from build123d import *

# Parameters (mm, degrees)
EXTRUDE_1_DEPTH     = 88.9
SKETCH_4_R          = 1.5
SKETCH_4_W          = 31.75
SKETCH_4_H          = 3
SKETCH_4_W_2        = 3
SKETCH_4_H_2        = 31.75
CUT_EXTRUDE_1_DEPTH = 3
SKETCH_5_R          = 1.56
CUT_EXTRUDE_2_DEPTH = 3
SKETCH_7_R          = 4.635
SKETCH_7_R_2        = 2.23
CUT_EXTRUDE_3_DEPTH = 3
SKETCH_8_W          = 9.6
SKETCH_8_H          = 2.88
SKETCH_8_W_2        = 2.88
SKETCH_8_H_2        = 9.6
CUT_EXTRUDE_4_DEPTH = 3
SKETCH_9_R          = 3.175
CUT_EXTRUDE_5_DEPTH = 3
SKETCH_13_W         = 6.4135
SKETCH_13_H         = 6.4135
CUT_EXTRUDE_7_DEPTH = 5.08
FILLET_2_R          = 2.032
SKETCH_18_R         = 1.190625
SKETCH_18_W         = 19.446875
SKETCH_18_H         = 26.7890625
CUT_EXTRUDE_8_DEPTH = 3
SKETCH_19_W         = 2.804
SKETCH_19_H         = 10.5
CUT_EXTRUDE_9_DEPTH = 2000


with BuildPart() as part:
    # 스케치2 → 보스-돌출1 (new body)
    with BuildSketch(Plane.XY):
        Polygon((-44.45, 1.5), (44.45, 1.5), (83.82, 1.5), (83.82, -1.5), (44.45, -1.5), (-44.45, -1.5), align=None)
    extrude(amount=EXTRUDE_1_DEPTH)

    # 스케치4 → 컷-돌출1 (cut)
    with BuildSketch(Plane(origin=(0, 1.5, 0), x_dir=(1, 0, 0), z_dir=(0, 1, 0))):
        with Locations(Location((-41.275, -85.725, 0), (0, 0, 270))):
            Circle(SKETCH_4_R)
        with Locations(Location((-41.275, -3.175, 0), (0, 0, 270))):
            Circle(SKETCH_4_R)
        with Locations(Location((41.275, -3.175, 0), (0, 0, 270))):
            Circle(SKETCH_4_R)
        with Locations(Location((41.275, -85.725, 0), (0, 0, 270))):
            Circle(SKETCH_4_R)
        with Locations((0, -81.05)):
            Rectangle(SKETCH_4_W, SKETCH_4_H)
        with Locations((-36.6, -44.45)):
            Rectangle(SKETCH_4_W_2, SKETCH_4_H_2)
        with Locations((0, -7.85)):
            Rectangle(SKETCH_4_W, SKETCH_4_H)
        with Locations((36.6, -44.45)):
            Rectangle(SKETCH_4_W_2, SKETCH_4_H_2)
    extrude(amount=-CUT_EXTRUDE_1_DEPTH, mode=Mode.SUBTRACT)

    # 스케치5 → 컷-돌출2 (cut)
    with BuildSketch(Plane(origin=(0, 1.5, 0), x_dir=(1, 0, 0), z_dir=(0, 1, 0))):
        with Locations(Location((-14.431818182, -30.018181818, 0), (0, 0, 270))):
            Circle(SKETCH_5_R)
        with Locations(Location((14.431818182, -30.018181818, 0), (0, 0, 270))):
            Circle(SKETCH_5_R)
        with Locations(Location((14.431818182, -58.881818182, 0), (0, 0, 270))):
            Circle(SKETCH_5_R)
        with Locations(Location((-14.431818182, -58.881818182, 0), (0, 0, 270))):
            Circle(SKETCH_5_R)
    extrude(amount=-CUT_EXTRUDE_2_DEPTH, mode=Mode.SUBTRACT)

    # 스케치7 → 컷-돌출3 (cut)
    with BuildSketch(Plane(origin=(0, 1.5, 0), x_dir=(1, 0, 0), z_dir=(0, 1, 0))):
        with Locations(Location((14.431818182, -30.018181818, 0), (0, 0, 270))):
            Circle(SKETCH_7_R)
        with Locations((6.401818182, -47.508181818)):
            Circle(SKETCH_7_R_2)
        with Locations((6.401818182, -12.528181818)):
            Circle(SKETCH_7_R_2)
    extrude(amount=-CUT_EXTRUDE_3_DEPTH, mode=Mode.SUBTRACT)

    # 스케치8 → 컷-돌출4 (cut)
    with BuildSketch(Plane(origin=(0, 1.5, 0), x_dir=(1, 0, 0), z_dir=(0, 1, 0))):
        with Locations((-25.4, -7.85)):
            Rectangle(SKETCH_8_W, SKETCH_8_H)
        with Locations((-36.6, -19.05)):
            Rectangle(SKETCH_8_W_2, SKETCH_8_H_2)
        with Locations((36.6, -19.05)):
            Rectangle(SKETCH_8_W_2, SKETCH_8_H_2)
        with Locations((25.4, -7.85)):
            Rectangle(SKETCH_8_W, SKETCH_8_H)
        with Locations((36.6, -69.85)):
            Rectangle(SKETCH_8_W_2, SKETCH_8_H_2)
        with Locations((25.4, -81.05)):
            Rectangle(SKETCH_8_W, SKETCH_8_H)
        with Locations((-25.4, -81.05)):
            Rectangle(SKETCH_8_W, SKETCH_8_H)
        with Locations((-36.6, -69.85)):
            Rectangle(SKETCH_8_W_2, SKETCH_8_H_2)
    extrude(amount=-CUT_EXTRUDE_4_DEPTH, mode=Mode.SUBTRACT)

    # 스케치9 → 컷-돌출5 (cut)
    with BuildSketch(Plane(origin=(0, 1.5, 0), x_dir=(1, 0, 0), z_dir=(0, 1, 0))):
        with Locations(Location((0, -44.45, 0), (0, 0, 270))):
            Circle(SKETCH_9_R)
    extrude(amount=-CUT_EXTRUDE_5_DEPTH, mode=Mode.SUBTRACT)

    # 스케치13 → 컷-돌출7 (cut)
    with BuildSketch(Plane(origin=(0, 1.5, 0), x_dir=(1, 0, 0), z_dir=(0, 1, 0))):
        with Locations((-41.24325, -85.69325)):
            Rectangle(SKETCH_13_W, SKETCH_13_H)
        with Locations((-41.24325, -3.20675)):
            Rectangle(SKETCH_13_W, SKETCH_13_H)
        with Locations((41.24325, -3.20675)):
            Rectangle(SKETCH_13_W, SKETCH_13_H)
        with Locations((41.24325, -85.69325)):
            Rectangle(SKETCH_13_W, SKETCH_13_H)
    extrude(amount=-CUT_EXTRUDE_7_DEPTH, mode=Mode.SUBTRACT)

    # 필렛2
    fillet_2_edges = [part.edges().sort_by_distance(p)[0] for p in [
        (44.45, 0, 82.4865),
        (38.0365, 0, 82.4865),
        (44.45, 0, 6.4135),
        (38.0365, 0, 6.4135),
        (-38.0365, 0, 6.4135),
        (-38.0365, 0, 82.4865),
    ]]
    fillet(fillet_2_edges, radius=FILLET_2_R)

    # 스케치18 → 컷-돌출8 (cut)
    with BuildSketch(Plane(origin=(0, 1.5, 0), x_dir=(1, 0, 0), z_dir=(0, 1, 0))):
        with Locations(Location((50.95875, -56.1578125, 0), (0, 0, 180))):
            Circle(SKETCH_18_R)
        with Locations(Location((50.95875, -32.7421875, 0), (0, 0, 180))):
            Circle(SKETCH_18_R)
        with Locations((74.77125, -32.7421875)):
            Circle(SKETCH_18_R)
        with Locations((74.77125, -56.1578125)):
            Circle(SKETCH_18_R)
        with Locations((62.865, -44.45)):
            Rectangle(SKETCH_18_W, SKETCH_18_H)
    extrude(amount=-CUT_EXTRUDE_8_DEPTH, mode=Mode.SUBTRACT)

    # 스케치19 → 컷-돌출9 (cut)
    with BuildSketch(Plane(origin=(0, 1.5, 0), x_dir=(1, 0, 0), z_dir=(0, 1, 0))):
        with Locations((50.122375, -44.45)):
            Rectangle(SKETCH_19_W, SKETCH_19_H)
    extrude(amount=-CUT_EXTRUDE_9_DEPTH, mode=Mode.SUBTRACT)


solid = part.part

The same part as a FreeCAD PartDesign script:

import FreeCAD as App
import Part
import Sketcher
Q = App.Units.Quantity


def edges_at(feature, points):
    """Names of the edges that pass closest to the given points."""
    edges = feature.Shape.Edges
    near = lambda p: min(range(len(edges)), key=lambda i: edges[i].distToShape(Part.Vertex(*p))[0])
    return sorted({f"Edge{near(p) + 1}" for p in points})

doc = App.newDocument("Part")
body = doc.addObject("PartDesign::Body", "Body")

# Sketch on XY plane
sketch1 = body.newObject("Sketcher::SketchObject", "Sketch")
sketch1.AttachmentSupport = (doc.getObject("XY_Plane"), [""])
sketch1.MapMode = "FlatFace"
sketch1.addGeometry([
    Part.LineSegment(App.Vector(83.82, 1.5, 0), App.Vector(-44.45, 1.5, 0)),
    Part.LineSegment(App.Vector(-44.45, 1.5, 0), App.Vector(-44.45, -1.5, 0)),
    Part.LineSegment(App.Vector(-44.45, -1.5, 0), App.Vector(83.82, -1.5, 0)),
    Part.LineSegment(App.Vector(83.82, -1.5, 0), App.Vector(83.82, 1.5, 0)),
], False)
sketch1.addConstraint([
    Sketcher.Constraint("Coincident", 0, 2, 1, 1),
    Sketcher.Constraint("Coincident", 1, 2, 2, 1),
    Sketcher.Constraint("Coincident", 2, 2, 3, 1),
    Sketcher.Constraint("Coincident", 3, 2, 0, 1),
    Sketcher.Constraint("Horizontal", 0),
    Sketcher.Constraint("Vertical", 1),
    Sketcher.Constraint("Horizontal", 2),
    Sketcher.Constraint("Vertical", 3),
    Sketcher.Constraint("DistanceX", 0, 2, 0, 1, Q("5.05 in")),
    Sketcher.Constraint("DistanceX", -1, 1, 2, 2, Q("3.3 in")),
    Sketcher.Constraint("DistanceY", 1, 2, 1, 1, 3.0),
    Sketcher.Constraint("DistanceY", -1, 1, 0, 2, 1.5),
])
pad1 = body.newObject("PartDesign::Pad", "Pad")
pad1.Profile = sketch1
pad1.Length = Q("3.5 in")

# Sketch on XZ plane
sketch2 = body.newObject("Sketcher::SketchObject", "Sketch001")
sketch2.AttachmentSupport = (doc.getObject("XZ_Plane"), [""])
sketch2.MapMode = "FlatFace"
sketch2.AttachmentOffset = App.Placement(App.Vector(0, 0, -1.5), App.Rotation())
sketch2.addGeometry([
    Part.Circle(App.Vector(-41.275, 85.725, 0), App.Vector(0, 0, 1), 1.5),  # 0
    Part.Circle(App.Vector(-41.275, 3.175, 0), App.Vector(0, 0, 1), 1.5),  # 1
    Part.Circle(App.Vector(41.275, 3.175, 0), App.Vector(0, 0, 1), 1.5),  # 2
    Part.Circle(App.Vector(41.275, 85.725, 0), App.Vector(0, 0, 1), 1.5),  # 3
    Part.LineSegment(App.Vector(-15.875, 79.55, 0), App.Vector(-15.875, 82.55, 0)),  # 4
    Part.LineSegment(App.Vector(-15.875, 82.55, 0), App.Vector(15.875, 82.55, 0)),  # 5
    Part.LineSegment(App.Vector(15.875, 82.55, 0), App.Vector(15.875, 79.55, 0)),  # 6
    Part.LineSegment(App.Vector(15.875, 79.55, 0), App.Vector(-15.875, 79.55, 0)),  # 7
    Part.LineSegment(App.Vector(-38.1, 28.575, 0), App.Vector(-38.1, 60.325, 0)),  # 8
    Part.LineSegment(App.Vector(-38.1, 60.325, 0), App.Vector(-35.1, 60.325, 0)),  # 9
    Part.LineSegment(App.Vector(-35.1, 60.325, 0), App.Vector(-35.1, 28.575, 0)),  # 10
    Part.LineSegment(App.Vector(-35.1, 28.575, 0), App.Vector(-38.1, 28.575, 0)),  # 11
    Part.LineSegment(App.Vector(-15.875, 6.35, 0), App.Vector(-15.875, 9.35, 0)),  # 12
    Part.LineSegment(App.Vector(-15.875, 9.35, 0), App.Vector(15.875, 9.35, 0)),  # 13
    Part.LineSegment(App.Vector(15.875, 9.35, 0), App.Vector(15.875, 6.35, 0)),  # 14
    Part.LineSegment(App.Vector(15.875, 6.35, 0), App.Vector(-15.875, 6.35, 0)),  # 15
    Part.LineSegment(App.Vector(35.1, 28.575, 0), App.Vector(35.1, 60.325, 0)),  # 16
    Part.LineSegment(App.Vector(35.1, 60.325, 0), App.Vector(38.1, 60.325, 0)),  # 17
    Part.LineSegment(App.Vector(38.1, 60.325, 0), App.Vector(38.1, 28.575, 0)),  # 18
    Part.LineSegment(App.Vector(38.1, 28.575, 0), App.Vector(35.1, 28.575, 0)),  # 19
], False)
sketch2.addConstraint([
    Sketcher.Constraint("Coincident", 4, 2, 5, 1),
    Sketcher.Constraint("Coincident", 5, 2, 6, 1),
    Sketcher.Constraint("Coincident", 6, 2, 7, 1),
    Sketcher.Constraint("Coincident", 7, 2, 4, 1),
    Sketcher.Constraint("Coincident", 8, 2, 9, 1),
    Sketcher.Constraint("Coincident", 9, 2, 10, 1),
    Sketcher.Constraint("Coincident", 10, 2, 11, 1),
    Sketcher.Constraint("Coincident", 11, 2, 8, 1),
    Sketcher.Constraint("Coincident", 12, 2, 13, 1),
    Sketcher.Constraint("Coincident", 13, 2, 14, 1),
    Sketcher.Constraint("Coincident", 14, 2, 15, 1),
    Sketcher.Constraint("Coincident", 15, 2, 12, 1),
    Sketcher.Constraint("Coincident", 16, 2, 17, 1),
    Sketcher.Constraint("Coincident", 17, 2, 18, 1),
    Sketcher.Constraint("Coincident", 18, 2, 19, 1),
    Sketcher.Constraint("Coincident", 19, 2, 16, 1),
    Sketcher.Constraint("Vertical", 4),
    Sketcher.Constraint("Horizontal", 5),
    Sketcher.Constraint("Vertical", 6),
    Sketcher.Constraint("Horizontal", 7),
    Sketcher.Constraint("Vertical", 8),
    Sketcher.Constraint("Horizontal", 9),
    Sketcher.Constraint("Vertical", 10),
    Sketcher.Constraint("Horizontal", 11),
    Sketcher.Constraint("Vertical", 12),
    Sketcher.Constraint("Horizontal", 13),
    Sketcher.Constraint("Vertical", 14),
    Sketcher.Constraint("Horizontal", 15),
    Sketcher.Constraint("Vertical", 16),
    Sketcher.Constraint("Horizontal", 17),
    Sketcher.Constraint("Vertical", 18),
    Sketcher.Constraint("Horizontal", 19),
    Sketcher.Constraint("Equal", 0, 1),
    Sketcher.Constraint("Equal", 1, 2),
    Sketcher.Constraint("Equal", 2, 3),
    Sketcher.Constraint("Symmetric", 1, 3, 2, 3, -2),
    Sketcher.Constraint("Symmetric", 0, 3, 3, 3, -2),
    Sketcher.Constraint("Symmetric", 9, 2, 16, 2, -2),
    Sketcher.Constraint("Symmetric", 11, 2, 18, 2, -2),
    Sketcher.Constraint("Vertical", 0, 3, 1, 3),
    Sketcher.Constraint("Vertical", 7, 2, 12, 2),
    Sketcher.Constraint("Vertical", 6, 2, 13, 2),
    Sketcher.Constraint("Equal", 19, 4),
    Sketcher.Constraint("Equal", 15, 8),
    Sketcher.Constraint("Equal", 6, 12),
    Sketcher.Constraint("DistanceX", 0, 3, 4, 2, Q("1 in")),
    Sketcher.Constraint("DistanceX", 5, 2, 3, 3, Q("1 in")),
    Sketcher.Constraint("DistanceY", 8, 2, 0, 3, Q("1 in")),
    Sketcher.Constraint("DistanceY", 1, 3, 10, 2, Q("1 in")),
    Sketcher.Constraint("DistanceX", 5, 1, 5, 2, Q("1.25 in")),
    Sketcher.Constraint("DistanceX", 8, 2, -1, 1, Q("1.5 in")),
    Sketcher.Constraint("Diameter", 0, 3.0),
    Sketcher.Constraint("DistanceY", -1, 1, 4, 2, Q("3.25 in")),
    Sketcher.Constraint("DistanceY", -1, 1, 14, 2, Q("0.25 in")),
    Sketcher.Constraint("DistanceY", -1, 1, 0, 3, Q("3.375 in")),
    Sketcher.Constraint("DistanceX", 9, 1, 9, 2, 3.0),
])
pocket1 = body.newObject("PartDesign::Pocket", "Pocket")
pocket1.Profile = sketch2
pocket1.Length = 3
pocket1.Reversed = True

# Sketch on XZ plane
sketch3 = body.newObject("Sketcher::SketchObject", "Sketch002")
sketch3.AttachmentSupport = (doc.getObject("XZ_Plane"), [""])
sketch3.MapMode = "FlatFace"
sketch3.AttachmentOffset = App.Placement(App.Vector(0, 0, -1.5), App.Rotation())
sketch3.addGeometry([
    Part.Circle(App.Vector(-14.431818, 30.018182, 0), App.Vector(0, 0, 1), 1.56),
    Part.Circle(App.Vector(14.431818, 30.018182, 0), App.Vector(0, 0, 1), 1.56),
    Part.Circle(App.Vector(14.431818, 58.881818, 0), App.Vector(0, 0, 1), 1.56),
    Part.Circle(App.Vector(-14.431818, 58.881818, 0), App.Vector(0, 0, 1), 1.56),
], False)
sketch3.addConstraint([
    Sketcher.Constraint("Equal", 0, 1),
    Sketcher.Constraint("Equal", 1, 2),
    Sketcher.Constraint("Equal", 2, 3),
    Sketcher.Constraint("Symmetric", 0, 3, 1, 3, -2),
    Sketcher.Constraint("Symmetric", 2, 3, 3, 3, -2),
    Sketcher.Constraint("Vertical", 1, 3, 2, 3),
    Sketcher.Constraint("Diameter", 0, 3.12),
    Sketcher.Constraint("DistanceX", 0, 3, -1, 1, 14.431818),
    Sketcher.Constraint("DistanceY", -1, 1, 0, 3, 30.018182),
    Sketcher.Constraint("DistanceY", -1, 1, 2, 3, 58.881818),
])
pocket2 = body.newObject("PartDesign::Pocket", "Pocket001")
pocket2.Profile = sketch3
pocket2.Length = 3
pocket2.Reversed = True

# Sketch on XZ plane
sketch4 = body.newObject("Sketcher::SketchObject", "Sketch003")
sketch4.AttachmentSupport = (doc.getObject("XZ_Plane"), [""])
sketch4.MapMode = "FlatFace"
sketch4.AttachmentOffset = App.Placement(App.Vector(0, 0, -1.5), App.Rotation())
sketch4.addGeometry([
    Part.Circle(App.Vector(14.431818, 30.018182, 0), App.Vector(0, 0, 1), 4.635),
    Part.Circle(App.Vector(6.401818, 47.508182, 0), App.Vector(0, 0, 1), 2.23),
    Part.Circle(App.Vector(6.401818, 12.528182, 0), App.Vector(0, 0, 1), 2.23),
], False)
sketch4.addConstraint([
    Sketcher.Constraint("Equal", 1, 2),
    Sketcher.Constraint("Vertical", 1, 3, 2, 3),
    Sketcher.Constraint("Diameter", 0, 9.27),
    Sketcher.Constraint("Diameter", 1, 4.46),
    Sketcher.Constraint("DistanceX", 1, 3, 0, 3, 8.03),
    Sketcher.Constraint("DistanceY", 0, 3, 1, 3, 17.49),
    Sketcher.Constraint("DistanceY", 2, 3, 0, 3, 17.49),
    Sketcher.Constraint("DistanceX", -1, 1, 0, 3, 14.431818),
    Sketcher.Constraint("DistanceY", -1, 1, 0, 3, 30.018182),
])
pocket3 = body.newObject("PartDesign::Pocket", "Pocket002")
pocket3.Profile = sketch4
pocket3.Length = 3
pocket3.Reversed = True

# Sketch on XZ plane
sketch5 = body.newObject("Sketcher::SketchObject", "Sketch004")
sketch5.AttachmentSupport = (doc.getObject("XZ_Plane"), [""])
sketch5.MapMode = "FlatFace"
sketch5.AttachmentOffset = App.Placement(App.Vector(0, 0, -1.5), App.Rotation())
sketch5.addGeometry([
    Part.LineSegment(App.Vector(-30.2, 6.41, 0), App.Vector(-30.2, 9.29, 0)),  # 0
    Part.LineSegment(App.Vector(-30.2, 9.29, 0), App.Vector(-20.6, 9.29, 0)),  # 1
    Part.LineSegment(App.Vector(-20.6, 9.29, 0), App.Vector(-20.6, 6.41, 0)),  # 2
    Part.LineSegment(App.Vector(-20.6, 6.41, 0), App.Vector(-30.2, 6.41, 0)),  # 3
    Part.LineSegment(App.Vector(-38.04, 14.25, 0), App.Vector(-38.04, 23.85, 0)),  # 4
    Part.LineSegment(App.Vector(-38.04, 23.85, 0), App.Vector(-35.16, 23.85, 0)),  # 5
    Part.LineSegment(App.Vector(-35.16, 23.85, 0), App.Vector(-35.16, 14.25, 0)),  # 6
    Part.LineSegment(App.Vector(-35.16, 14.25, 0), App.Vector(-38.04, 14.25, 0)),  # 7
    Part.LineSegment(App.Vector(35.16, 14.25, 0), App.Vector(35.16, 23.85, 0)),  # 8
    Part.LineSegment(App.Vector(35.16, 23.85, 0), App.Vector(38.04, 23.85, 0)),  # 9
    Part.LineSegment(App.Vector(38.04, 23.85, 0), App.Vector(38.04, 14.25, 0)),  # 10
    Part.LineSegment(App.Vector(38.04, 14.25, 0), App.Vector(35.16, 14.25, 0)),  # 11
    Part.LineSegment(App.Vector(20.6, 6.41, 0), App.Vector(20.6, 9.29, 0)),  # 12
    Part.LineSegment(App.Vector(20.6, 9.29, 0), App.Vector(30.2, 9.29, 0)),  # 13
    Part.LineSegment(App.Vector(30.2, 9.29, 0), App.Vector(30.2, 6.41, 0)),  # 14
    Part.LineSegment(App.Vector(30.2, 6.41, 0), App.Vector(20.6, 6.41, 0)),  # 15
    Part.LineSegment(App.Vector(35.16, 65.05, 0), App.Vector(35.16, 74.65, 0)),  # 16
    Part.LineSegment(App.Vector(35.16, 74.65, 0), App.Vector(38.04, 74.65, 0)),  # 17
    Part.LineSegment(App.Vector(38.04, 74.65, 0), App.Vector(38.04, 65.05, 0)),  # 18
    Part.LineSegment(App.Vector(38.04, 65.05, 0), App.Vector(35.16, 65.05, 0)),  # 19
    Part.LineSegment(App.Vector(20.6, 79.61, 0), App.Vector(20.6, 82.49, 0)),  # 20
    Part.LineSegment(App.Vector(20.6, 82.49, 0), App.Vector(30.2, 82.49, 0)),  # 21
    Part.LineSegment(App.Vector(30.2, 82.49, 0), App.Vector(30.2, 79.61, 0)),  # 22
    Part.LineSegment(App.Vector(30.2, 79.61, 0), App.Vector(20.6, 79.61, 0)),  # 23
    Part.LineSegment(App.Vector(-30.2, 79.61, 0), App.Vector(-30.2, 82.49, 0)),  # 24
    Part.LineSegment(App.Vector(-30.2, 82.49, 0), App.Vector(-20.6, 82.49, 0)),  # 25
    Part.LineSegment(App.Vector(-20.6, 82.49, 0), App.Vector(-20.6, 79.61, 0)),  # 26
    Part.LineSegment(App.Vector(-20.6, 79.61, 0), App.Vector(-30.2, 79.61, 0)),  # 27
    Part.LineSegment(App.Vector(-38.04, 65.05, 0), App.Vector(-38.04, 74.65, 0)),  # 28
    Part.LineSegment(App.Vector(-38.04, 74.65, 0), App.Vector(-35.16, 74.65, 0)),  # 29
    Part.LineSegment(App.Vector(-35.16, 74.65, 0), App.Vector(-35.16, 65.05, 0)),  # 30
    Part.LineSegment(App.Vector(-35.16, 65.05, 0), App.Vector(-38.04, 65.05, 0)),  # 31
], False)
sketch5.addConstraint([
    Sketcher.Constraint("Coincident", 0, 2, 1, 1),
    Sketcher.Constraint("Coincident", 1, 2, 2, 1),
    Sketcher.Constraint("Coincident", 2, 2, 3, 1),
    Sketcher.Constraint("Coincident", 3, 2, 0, 1),
    Sketcher.Constraint("Coincident", 4, 2, 5, 1),
    Sketcher.Constraint("Coincident", 5, 2, 6, 1),
    Sketcher.Constraint("Coincident", 6, 2, 7, 1),
    Sketcher.Constraint("Coincident", 7, 2, 4, 1),
    Sketcher.Constraint("Coincident", 8, 2, 9, 1),
    Sketcher.Constraint("Coincident", 9, 2, 10, 1),
    Sketcher.Constraint("Coincident", 10, 2, 11, 1),
    Sketcher.Constraint("Coincident", 11, 2, 8, 1),
    Sketcher.Constraint("Coincident", 12, 2, 13, 1),
    Sketcher.Constraint("Coincident", 13, 2, 14, 1),
    Sketcher.Constraint("Coincident", 14, 2, 15, 1),
    Sketcher.Constraint("Coincident", 15, 2, 12, 1),
    Sketcher.Constraint("Coincident", 16, 2, 17, 1),
    Sketcher.Constraint("Coincident", 17, 2, 18, 1),
    Sketcher.Constraint("Coincident", 18, 2, 19, 1),
    Sketcher.Constraint("Coincident", 19, 2, 16, 1),
    Sketcher.Constraint("Coincident", 20, 2, 21, 1),
    Sketcher.Constraint("Coincident", 21, 2, 22, 1),
    Sketcher.Constraint("Coincident", 22, 2, 23, 1),
    Sketcher.Constraint("Coincident", 23, 2, 20, 1),
    Sketcher.Constraint("Coincident", 24, 2, 25, 1),
    Sketcher.Constraint("Coincident", 25, 2, 26, 1),
    Sketcher.Constraint("Coincident", 26, 2, 27, 1),
    Sketcher.Constraint("Coincident", 27, 2, 24, 1),
    Sketcher.Constraint("Coincident", 28, 2, 29, 1),
    Sketcher.Constraint("Coincident", 29, 2, 30, 1),
    Sketcher.Constraint("Coincident", 30, 2, 31, 1),
    Sketcher.Constraint("Coincident", 31, 2, 28, 1),
    Sketcher.Constraint("Vertical", 0),
    Sketcher.Constraint("Horizontal", 1),
    Sketcher.Constraint("Vertical", 2),
    Sketcher.Constraint("Horizontal", 3),
    Sketcher.Constraint("Vertical", 4),
    Sketcher.Constraint("Horizontal", 5),
    Sketcher.Constraint("Vertical", 6),
    Sketcher.Constraint("Horizontal", 7),
    Sketcher.Constraint("Vertical", 8),
    Sketcher.Constraint("Horizontal", 9),
    Sketcher.Constraint("Vertical", 10),
    Sketcher.Constraint("Horizontal", 11),
    Sketcher.Constraint("Vertical", 12),
    Sketcher.Constraint("Horizontal", 13),
    Sketcher.Constraint("Vertical", 14),
    Sketcher.Constraint("Horizontal", 15),
    Sketcher.Constraint("Vertical", 16),
    Sketcher.Constraint("Horizontal", 17),
    Sketcher.Constraint("Vertical", 18),
    Sketcher.Constraint("Horizontal", 19),
    Sketcher.Constraint("Vertical", 20),
    Sketcher.Constraint("Horizontal", 21),
    Sketcher.Constraint("Vertical", 22),
    Sketcher.Constraint("Horizontal", 23),
    Sketcher.Constraint("Vertical", 24),
    Sketcher.Constraint("Horizontal", 25),
    Sketcher.Constraint("Vertical", 26),
    Sketcher.Constraint("Horizontal", 27),
    Sketcher.Constraint("Vertical", 28),
    Sketcher.Constraint("Horizontal", 29),
    Sketcher.Constraint("Vertical", 30),
    Sketcher.Constraint("Horizontal", 31),
    Sketcher.Constraint("Symmetric", 5, 2, 8, 2, -2),
    Sketcher.Constraint("Symmetric", 7, 2, 10, 2, -2),
    Sketcher.Constraint("Symmetric", 1, 2, 12, 2, -2),
    Sketcher.Constraint("Symmetric", 3, 2, 14, 2, -2),
    Sketcher.Constraint("Symmetric", 21, 2, 24, 2, -2),
    Sketcher.Constraint("Symmetric", 23, 2, 26, 2, -2),
    Sketcher.Constraint("Symmetric", 17, 2, 28, 2, -2),
    Sketcher.Constraint("Symmetric", 19, 2, 30, 2, -2),
    Sketcher.Constraint("Vertical", 11, 2, 16, 2),
    Sketcher.Constraint("Vertical", 10, 2, 17, 2),
    Sketcher.Constraint("Vertical", 15, 2, 20, 2),
    Sketcher.Constraint("Vertical", 14, 2, 21, 2),
    Sketcher.Constraint("Equal", 31, 0),
    Sketcher.Constraint("Equal", 27, 4),
    Sketcher.Constraint("Equal", 10, 16),
    Sketcher.Constraint("Equal", 14, 20),
    Sketcher.Constraint("DistanceY", 8, 2, 16, 2, Q("2 in")),
    Sketcher.Constraint("DistanceX", 24, 2, 20, 2, Q("2 in")),
    Sketcher.Constraint("DistanceX", 1, 1, 1, 2, 9.6),
    Sketcher.Constraint("DistanceX", 5, 1, 5, 2, 2.88),
    Sketcher.Constraint("DistanceY", -1, 1, 0, 2, 9.29),
    Sketcher.Constraint("DistanceX", 4, 2, -1, 1, 38.04),
    Sketcher.Constraint("DistanceY", -1, 1, 4, 2, 23.85),
    Sketcher.Constraint("DistanceY", -1, 1, 20, 2, 82.49),
])
pocket4 = body.newObject("PartDesign::Pocket", "Pocket003")
pocket4.Profile = sketch5
pocket4.Length = 3
pocket4.Reversed = True

# Sketch on XZ plane
sketch6 = body.newObject("Sketcher::SketchObject", "Sketch005")
sketch6.AttachmentSupport = (doc.getObject("XZ_Plane"), [""])
sketch6.MapMode = "FlatFace"
sketch6.AttachmentOffset = App.Placement(App.Vector(0, 0, -1.5), App.Rotation())
sketch6.addGeometry(Part.Circle(App.Vector(0, 44.45, 0), App.Vector(0, 0, 1), 3.175), False)
sketch6.addConstraint([
    Sketcher.Constraint("PointOnObject", 0, 3, -2),
    Sketcher.Constraint("Diameter", 0, Q("0.25 in")),
    Sketcher.Constraint("DistanceY", -1, 1, 0, 3, Q("1.75 in")),
])
pocket5 = body.newObject("PartDesign::Pocket", "Pocket004")
pocket5.Profile = sketch6
pocket5.Length = 3
pocket5.Reversed = True

# Sketch on XZ plane
sketch7 = body.newObject("Sketcher::SketchObject", "Sketch006")
sketch7.AttachmentSupport = (doc.getObject("XZ_Plane"), [""])
sketch7.MapMode = "FlatFace"
sketch7.AttachmentOffset = App.Placement(App.Vector(0, 0, -1.5), App.Rotation())
sketch7.addGeometry([
    Part.LineSegment(App.Vector(-44.45, 82.4865, 0), App.Vector(-44.45, 88.9, 0)),  # 0
    Part.LineSegment(App.Vector(-44.45, 88.9, 0), App.Vector(-38.0365, 88.9, 0)),  # 1
    Part.LineSegment(App.Vector(-38.0365, 88.9, 0), App.Vector(-38.0365, 82.4865, 0)),  # 2
    Part.LineSegment(App.Vector(-38.0365, 82.4865, 0), App.Vector(-44.45, 82.4865, 0)),  # 3
    Part.LineSegment(App.Vector(-44.45, 0, 0), App.Vector(-44.45, 6.4135, 0)),  # 4
    Part.LineSegment(App.Vector(-44.45, 6.4135, 0), App.Vector(-38.0365, 6.4135, 0)),  # 5
    Part.LineSegment(App.Vector(-38.0365, 6.4135, 0), App.Vector(-38.0365, 0, 0)),  # 6
    Part.LineSegment(App.Vector(-38.0365, 0, 0), App.Vector(-44.45, 0, 0)),  # 7
    Part.LineSegment(App.Vector(38.0365, 0, 0), App.Vector(38.0365, 6.4135, 0)),  # 8
    Part.LineSegment(App.Vector(38.0365, 6.4135, 0), App.Vector(44.45, 6.4135, 0)),  # 9
    Part.LineSegment(App.Vector(44.45, 6.4135, 0), App.Vector(44.45, 0, 0)),  # 10
    Part.LineSegment(App.Vector(44.45, 0, 0), App.Vector(38.0365, 0, 0)),  # 11
    Part.LineSegment(App.Vector(38.0365, 82.4865, 0), App.Vector(38.0365, 88.9, 0)),  # 12
    Part.LineSegment(App.Vector(38.0365, 88.9, 0), App.Vector(44.45, 88.9, 0)),  # 13
    Part.LineSegment(App.Vector(44.45, 88.9, 0), App.Vector(44.45, 82.4865, 0)),  # 14
    Part.LineSegment(App.Vector(44.45, 82.4865, 0), App.Vector(38.0365, 82.4865, 0)),  # 15
], False)
sketch7.addConstraint([
    Sketcher.Constraint("Coincident", 0, 2, 1, 1),
    Sketcher.Constraint("Coincident", 1, 2, 2, 1),
    Sketcher.Constraint("Coincident", 2, 2, 3, 1),
    Sketcher.Constraint("Coincident", 3, 2, 0, 1),
    Sketcher.Constraint("Coincident", 4, 2, 5, 1),
    Sketcher.Constraint("Coincident", 5, 2, 6, 1),
    Sketcher.Constraint("Coincident", 6, 2, 7, 1),
    Sketcher.Constraint("Coincident", 7, 2, 4, 1),
    Sketcher.Constraint("Coincident", 8, 2, 9, 1),
    Sketcher.Constraint("Coincident", 9, 2, 10, 1),
    Sketcher.Constraint("Coincident", 10, 2, 11, 1),
    Sketcher.Constraint("Coincident", 11, 2, 8, 1),
    Sketcher.Constraint("Coincident", 12, 2, 13, 1),
    Sketcher.Constraint("Coincident", 13, 2, 14, 1),
    Sketcher.Constraint("Coincident", 14, 2, 15, 1),
    Sketcher.Constraint("Coincident", 15, 2, 12, 1),
    Sketcher.Constraint("Vertical", 0),
    Sketcher.Constraint("Horizontal", 1),
    Sketcher.Constraint("Vertical", 2),
    Sketcher.Constraint("Horizontal", 3),
    Sketcher.Constraint("Vertical", 4),
    Sketcher.Constraint("Horizontal", 5),
    Sketcher.Constraint("Vertical", 6),
    Sketcher.Constraint("Horizontal", 7),
    Sketcher.Constraint("Vertical", 8),
    Sketcher.Constraint("Horizontal", 9),
    Sketcher.Constraint("Vertical", 10),
    Sketcher.Constraint("Horizontal", 11),
    Sketcher.Constraint("Vertical", 12),
    Sketcher.Constraint("Horizontal", 13),
    Sketcher.Constraint("Vertical", 14),
    Sketcher.Constraint("Horizontal", 15),
    Sketcher.Constraint("Symmetric", 7, 2, 10, 2, -1, 1),
    Sketcher.Constraint("Symmetric", 5, 2, 8, 2, -2),
    Sketcher.Constraint("Symmetric", 1, 2, 12, 2, -2),
    Sketcher.Constraint("Symmetric", 3, 2, 14, 2, -2),
    Sketcher.Constraint("PointOnObject", 6, 2, -1),
    Sketcher.Constraint("Vertical", 3, 2, 4, 2),
    Sketcher.Constraint("Vertical", 2, 2, 5, 2),
    Sketcher.Constraint("Equal", 15, 0),
    Sketcher.Constraint("Equal", 2, 4),
    Sketcher.Constraint("DistanceY", -1, 1, 0, 2, Q("3.5 in")),
    Sketcher.Constraint("DistanceX", 4, 2, 9, 2, Q("3.5 in")),
    Sketcher.Constraint("DistanceX", 1, 1, 1, 2, Q("0.2525 in")),
])
pocket6 = body.newObject("PartDesign::Pocket", "Pocket005")
pocket6.Profile = sketch7
pocket6.Length = Q("0.2 in")
pocket6.Reversed = True
doc.recompute()

fillet = body.newObject("PartDesign::Fillet", "Fillet")
fillet.Base = (pocket6, edges_at(pocket6, [
    (44.45, 0, 82.487),
    (38.036, 0, 82.487),
    (44.45, 0, 6.413),
    (38.036, 0, 6.413),
    (-38.036, 0, 6.413),
    (-38.036, 0, 82.487),
]))
fillet.Radius = Q("0.08 in")

# Sketch on XZ plane
sketch8 = body.newObject("Sketcher::SketchObject", "Sketch007")
sketch8.AttachmentSupport = (doc.getObject("XZ_Plane"), [""])
sketch8.MapMode = "FlatFace"
sketch8.AttachmentOffset = App.Placement(App.Vector(0, 0, -1.5), App.Rotation())
sketch8.addGeometry([
    Part.Circle(App.Vector(50.95875, 56.157812, 0), App.Vector(0, 0, 1), 1.190625),  # 0
    Part.Circle(App.Vector(50.95875, 32.742188, 0), App.Vector(0, 0, 1), 1.190625),  # 1
    Part.Circle(App.Vector(74.77125, 32.742188, 0), App.Vector(0, 0, 1), 1.190625),  # 2
    Part.Circle(App.Vector(74.77125, 56.157812, 0), App.Vector(0, 0, 1), 1.190625),  # 3
    Part.LineSegment(App.Vector(53.141562, 31.055469, 0), App.Vector(53.141562, 57.844531, 0)),  # 4
    Part.LineSegment(App.Vector(53.141562, 57.844531, 0), App.Vector(72.588437, 57.844531, 0)),  # 5
    Part.LineSegment(App.Vector(72.588437, 57.844531, 0), App.Vector(72.588437, 31.055469, 0)),  # 6
    Part.LineSegment(App.Vector(72.588437, 31.055469, 0), App.Vector(53.141562, 31.055469, 0)),  # 7
], False)
sketch8.addConstraint([
    Sketcher.Constraint("Coincident", 4, 2, 5, 1),
    Sketcher.Constraint("Coincident", 5, 2, 6, 1),
    Sketcher.Constraint("Coincident", 6, 2, 7, 1),
    Sketcher.Constraint("Coincident", 7, 2, 4, 1),
    Sketcher.Constraint("Vertical", 4),
    Sketcher.Constraint("Horizontal", 5),
    Sketcher.Constraint("Vertical", 6),
    Sketcher.Constraint("Horizontal", 7),
    Sketcher.Constraint("Equal", 0, 1),
    Sketcher.Constraint("Equal", 1, 2),
    Sketcher.Constraint("Equal", 2, 3),
    Sketcher.Constraint("Horizontal", 1, 3, 2, 3),
    Sketcher.Constraint("Horizontal", 0, 3, 3, 3),
    Sketcher.Constraint("Vertical", 0, 3, 1, 3),
    Sketcher.Constraint("Vertical", 2, 3, 3, 3),
    Sketcher.Constraint("Diameter", 0, Q("0.09375 in")),
    Sketcher.Constraint("DistanceX", 5, 1, 5, 2, Q("0.765625 in")),
    Sketcher.Constraint("DistanceY", 1, 3, 0, 3, Q("0.921875 in")),
    Sketcher.Constraint("DistanceX", 1, 3, 2, 3, Q("0.9375 in")),
    Sketcher.Constraint("DistanceY", 4, 1, 4, 2, 26.789063),
    Sketcher.Constraint("DistanceX", -1, 1, 0, 3, 50.95875),
    Sketcher.Constraint("DistanceY", -1, 1, 4, 2, 57.844531),
    Sketcher.Constraint("DistanceY", 0, 3, 4, 2, 1.686719),
    Sketcher.Constraint("DistanceX", -1, 1, 4, 2, 53.141562),
])
pocket7 = body.newObject("PartDesign::Pocket", "Pocket006")
pocket7.Profile = sketch8
pocket7.Length = 3
pocket7.Reversed = True

# Sketch on XZ plane
sketch9 = body.newObject("Sketcher::SketchObject", "Sketch008")
sketch9.AttachmentSupport = (doc.getObject("XZ_Plane"), [""])
sketch9.MapMode = "FlatFace"
sketch9.AttachmentOffset = App.Placement(App.Vector(0, 0, -1.5), App.Rotation())
sketch9.addGeometry([
    Part.LineSegment(App.Vector(48.720375, 39.2, 0), App.Vector(48.720375, 49.7, 0)),
    Part.LineSegment(App.Vector(48.720375, 49.7, 0), App.Vector(51.524375, 49.7, 0)),
    Part.LineSegment(App.Vector(51.524375, 49.7, 0), App.Vector(51.524375, 39.2, 0)),
    Part.LineSegment(App.Vector(51.524375, 39.2, 0), App.Vector(48.720375, 39.2, 0)),
], False)
sketch9.addConstraint([
    Sketcher.Constraint("Coincident", 0, 2, 1, 1),
    Sketcher.Constraint("Coincident", 1, 2, 2, 1),
    Sketcher.Constraint("Coincident", 2, 2, 3, 1),
    Sketcher.Constraint("Coincident", 3, 2, 0, 1),
    Sketcher.Constraint("Vertical", 0),
    Sketcher.Constraint("Horizontal", 1),
    Sketcher.Constraint("Vertical", 2),
    Sketcher.Constraint("Horizontal", 3),
    Sketcher.Constraint("DistanceX", 1, 1, 1, 2, 2.804),
    Sketcher.Constraint("DistanceY", 0, 1, 0, 2, 10.5),
    Sketcher.Constraint("DistanceY", -1, 1, 0, 2, 49.7),
    Sketcher.Constraint("DistanceX", -1, 1, 0, 2, 48.720375),
])
pocket8 = body.newObject("PartDesign::Pocket", "Pocket007")
pocket8.Profile = sketch9
pocket8.Length = 2000
pocket8.Reversed = True

doc.recompute()
